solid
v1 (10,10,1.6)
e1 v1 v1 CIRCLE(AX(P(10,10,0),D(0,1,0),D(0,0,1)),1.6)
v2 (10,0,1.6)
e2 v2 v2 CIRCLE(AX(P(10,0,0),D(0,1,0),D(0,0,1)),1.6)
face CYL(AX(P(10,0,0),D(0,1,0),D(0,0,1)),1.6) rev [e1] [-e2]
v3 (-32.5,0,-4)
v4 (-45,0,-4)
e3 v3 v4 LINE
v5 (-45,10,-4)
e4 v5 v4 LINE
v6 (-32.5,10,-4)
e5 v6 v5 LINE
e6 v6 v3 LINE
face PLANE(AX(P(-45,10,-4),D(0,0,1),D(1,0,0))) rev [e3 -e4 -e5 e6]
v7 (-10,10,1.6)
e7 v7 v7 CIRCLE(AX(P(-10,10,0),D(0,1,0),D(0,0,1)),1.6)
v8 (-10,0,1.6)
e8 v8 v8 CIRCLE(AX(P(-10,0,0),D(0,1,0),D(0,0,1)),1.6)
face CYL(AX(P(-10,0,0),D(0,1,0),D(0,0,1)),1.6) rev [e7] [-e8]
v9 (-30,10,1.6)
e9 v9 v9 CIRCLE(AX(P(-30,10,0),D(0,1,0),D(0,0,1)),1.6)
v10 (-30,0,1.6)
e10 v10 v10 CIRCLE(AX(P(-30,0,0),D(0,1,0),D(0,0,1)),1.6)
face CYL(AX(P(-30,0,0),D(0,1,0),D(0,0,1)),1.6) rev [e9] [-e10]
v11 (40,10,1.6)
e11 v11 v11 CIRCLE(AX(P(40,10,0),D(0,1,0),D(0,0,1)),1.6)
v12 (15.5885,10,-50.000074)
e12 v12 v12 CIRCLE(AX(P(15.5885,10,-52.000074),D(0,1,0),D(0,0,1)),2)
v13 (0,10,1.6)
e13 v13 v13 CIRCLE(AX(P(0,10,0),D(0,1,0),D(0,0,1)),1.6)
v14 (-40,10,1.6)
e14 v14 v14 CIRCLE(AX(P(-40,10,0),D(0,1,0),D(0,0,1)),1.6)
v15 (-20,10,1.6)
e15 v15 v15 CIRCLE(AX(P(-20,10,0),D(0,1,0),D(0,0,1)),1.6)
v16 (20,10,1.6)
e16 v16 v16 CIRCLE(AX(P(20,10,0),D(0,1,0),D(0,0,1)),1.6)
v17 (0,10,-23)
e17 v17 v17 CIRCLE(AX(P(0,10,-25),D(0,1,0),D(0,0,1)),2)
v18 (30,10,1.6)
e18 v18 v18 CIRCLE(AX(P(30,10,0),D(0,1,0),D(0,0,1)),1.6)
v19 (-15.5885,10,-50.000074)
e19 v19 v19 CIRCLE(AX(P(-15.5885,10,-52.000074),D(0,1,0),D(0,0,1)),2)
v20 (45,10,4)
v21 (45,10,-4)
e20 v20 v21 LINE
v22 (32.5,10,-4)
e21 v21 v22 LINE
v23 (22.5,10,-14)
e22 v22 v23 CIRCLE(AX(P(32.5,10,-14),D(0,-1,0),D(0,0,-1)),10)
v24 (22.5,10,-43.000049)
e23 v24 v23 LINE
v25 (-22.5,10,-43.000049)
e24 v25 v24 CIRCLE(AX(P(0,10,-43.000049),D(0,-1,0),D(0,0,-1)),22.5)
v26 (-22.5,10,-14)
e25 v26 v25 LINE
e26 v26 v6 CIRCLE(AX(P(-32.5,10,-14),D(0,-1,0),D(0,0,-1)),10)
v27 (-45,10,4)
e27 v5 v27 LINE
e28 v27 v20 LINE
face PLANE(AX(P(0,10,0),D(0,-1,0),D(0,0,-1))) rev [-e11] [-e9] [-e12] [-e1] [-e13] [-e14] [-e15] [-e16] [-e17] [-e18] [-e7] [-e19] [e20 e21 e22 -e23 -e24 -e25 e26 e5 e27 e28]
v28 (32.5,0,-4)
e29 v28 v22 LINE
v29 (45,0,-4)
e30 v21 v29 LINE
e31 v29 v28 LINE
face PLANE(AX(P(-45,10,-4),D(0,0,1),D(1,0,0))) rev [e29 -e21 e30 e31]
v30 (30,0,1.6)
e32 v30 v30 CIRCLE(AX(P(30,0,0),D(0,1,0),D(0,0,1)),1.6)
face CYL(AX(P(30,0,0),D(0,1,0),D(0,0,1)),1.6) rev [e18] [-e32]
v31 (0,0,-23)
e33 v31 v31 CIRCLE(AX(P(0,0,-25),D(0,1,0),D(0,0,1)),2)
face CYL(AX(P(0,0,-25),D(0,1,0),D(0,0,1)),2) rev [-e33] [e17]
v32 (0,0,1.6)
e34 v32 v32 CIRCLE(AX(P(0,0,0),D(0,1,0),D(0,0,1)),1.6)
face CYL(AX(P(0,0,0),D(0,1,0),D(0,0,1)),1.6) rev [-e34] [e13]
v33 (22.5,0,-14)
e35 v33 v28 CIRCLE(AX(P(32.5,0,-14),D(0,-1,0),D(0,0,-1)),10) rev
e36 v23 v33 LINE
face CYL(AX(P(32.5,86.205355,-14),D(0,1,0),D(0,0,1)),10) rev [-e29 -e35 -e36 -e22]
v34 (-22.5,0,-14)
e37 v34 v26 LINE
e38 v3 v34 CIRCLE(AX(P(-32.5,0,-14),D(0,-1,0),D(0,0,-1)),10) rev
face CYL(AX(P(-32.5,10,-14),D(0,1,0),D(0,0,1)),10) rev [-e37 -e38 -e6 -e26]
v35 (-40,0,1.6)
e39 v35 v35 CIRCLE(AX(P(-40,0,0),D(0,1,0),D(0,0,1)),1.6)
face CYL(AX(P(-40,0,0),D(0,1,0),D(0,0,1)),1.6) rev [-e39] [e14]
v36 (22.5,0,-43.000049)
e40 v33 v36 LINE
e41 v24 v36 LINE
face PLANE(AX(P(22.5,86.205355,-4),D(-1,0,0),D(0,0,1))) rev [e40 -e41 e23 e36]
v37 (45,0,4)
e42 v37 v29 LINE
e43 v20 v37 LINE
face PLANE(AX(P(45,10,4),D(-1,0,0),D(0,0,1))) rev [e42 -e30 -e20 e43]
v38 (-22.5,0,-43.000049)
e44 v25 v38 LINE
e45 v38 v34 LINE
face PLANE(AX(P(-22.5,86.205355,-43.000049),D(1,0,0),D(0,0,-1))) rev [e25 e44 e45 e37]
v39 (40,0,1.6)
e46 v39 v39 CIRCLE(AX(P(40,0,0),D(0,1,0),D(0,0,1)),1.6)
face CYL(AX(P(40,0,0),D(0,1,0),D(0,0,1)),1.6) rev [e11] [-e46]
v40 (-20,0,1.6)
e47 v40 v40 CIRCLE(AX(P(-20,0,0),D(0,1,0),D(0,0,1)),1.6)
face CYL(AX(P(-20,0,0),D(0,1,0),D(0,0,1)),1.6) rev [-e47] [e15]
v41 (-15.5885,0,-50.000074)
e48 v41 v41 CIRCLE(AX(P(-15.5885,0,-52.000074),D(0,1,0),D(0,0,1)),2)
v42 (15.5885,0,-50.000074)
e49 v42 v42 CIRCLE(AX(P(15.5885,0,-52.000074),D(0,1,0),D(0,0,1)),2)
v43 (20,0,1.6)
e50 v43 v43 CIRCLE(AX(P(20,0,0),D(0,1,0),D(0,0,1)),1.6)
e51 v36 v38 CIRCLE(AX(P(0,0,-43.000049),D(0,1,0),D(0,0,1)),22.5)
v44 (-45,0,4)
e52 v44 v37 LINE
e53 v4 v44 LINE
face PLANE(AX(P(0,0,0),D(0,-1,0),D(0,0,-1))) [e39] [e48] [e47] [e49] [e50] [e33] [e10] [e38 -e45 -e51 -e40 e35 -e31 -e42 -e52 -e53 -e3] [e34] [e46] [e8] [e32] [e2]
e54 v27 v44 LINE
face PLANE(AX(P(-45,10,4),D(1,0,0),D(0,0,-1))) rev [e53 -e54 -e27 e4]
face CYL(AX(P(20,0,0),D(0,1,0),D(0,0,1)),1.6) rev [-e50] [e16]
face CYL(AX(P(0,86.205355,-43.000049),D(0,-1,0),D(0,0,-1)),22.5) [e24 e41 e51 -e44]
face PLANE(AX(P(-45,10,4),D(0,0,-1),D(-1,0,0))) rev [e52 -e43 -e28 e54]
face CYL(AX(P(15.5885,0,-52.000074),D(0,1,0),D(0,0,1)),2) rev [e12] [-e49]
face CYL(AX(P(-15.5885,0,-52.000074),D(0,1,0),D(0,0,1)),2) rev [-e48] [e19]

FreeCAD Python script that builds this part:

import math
import FreeCAD as App
import Part
import Sketcher
Q = App.Units.Quantity


def edges_at(feature, points):
    """Names of the edges that pass closest to the given points."""
    edges = feature.Shape.Edges
    near = lambda p: min(range(len(edges)), key=lambda i: edges[i].distToShape(Part.Vertex(*p))[0])
    return sorted({f"Edge{near(p) + 1}" for p in points})


def add_polygon(sketch, points):
    """Adds a closed chain of lines whose ends are joined by coincident constraints."""
    first, n = sketch.GeometryCount, len(points)
    for a, b in zip(points, points[1:] + points[:1]):
        sketch.addGeometry(Part.LineSegment(App.Vector(*a, 0), App.Vector(*b, 0)), False)
    for i in range(n):
        sketch.addConstraint(Sketcher.Constraint("Coincident", first + i, 2, first + (i + 1) % n, 1))

doc = App.newDocument("Part")
body = doc.addObject("PartDesign::Body", "Body")

sketch1 = body.newObject("Sketcher::SketchObject", "Sketch")
sketch1.AttachmentSupport = (doc.getObject("XZ_Plane"), [""])
sketch1.MapMode = "FlatFace"
add_polygon(sketch1, [(-45, -4), (-45, 4), (45, 4), (45, -4)])
sketch1.addConstraint(Sketcher.Constraint("Vertical", 0))
sketch1.addConstraint(Sketcher.Constraint("Horizontal", 1))
sketch1.addConstraint(Sketcher.Constraint("Vertical", 2))
sketch1.addConstraint(Sketcher.Constraint("Horizontal", 3))
sketch1.addConstraint(Sketcher.Constraint("Symmetric", 0, 2, 2, 2, -1, 1))
sketch1.addConstraint(Sketcher.Constraint("DistanceX", 1, 1, 1, 2, Q("90 mm")))
sketch1.addConstraint(Sketcher.Constraint("DistanceY", 0, 1, 0, 2, Q("8 mm")))
pad1 = body.newObject("PartDesign::Pad", "Pad")
pad1.Profile = sketch1
pad1.Length = 10
pad1.Reversed = True

sketch2 = body.newObject("Sketcher::SketchObject", "Sketch001")
sketch2.AttachmentSupport = (doc.getObject("XZ_Plane"), [""])
sketch2.MapMode = "FlatFace"
sketch2.addGeometry(Part.LineSegment(App.Vector(-22.5, -43.000049, 0), App.Vector(-22.5, -4, 0)), False)
sketch2.addGeometry(Part.LineSegment(App.Vector(-22.5, -4, 0), App.Vector(22.5, -4, 0)), False)
sketch2.addGeometry(Part.LineSegment(App.Vector(22.5, -4, 0), App.Vector(22.5, -43.000049, 0)), False)
sketch2.addGeometry(Part.ArcOfCircle(Part.Circle(App.Vector(0, -43.000049, 0), App.Vector(0, 0, 1), 22.5), math.radians(180), math.radians(360)), False)
sketch2.addConstraint(Sketcher.Constraint("Coincident", 0, 2, 1, 1))
sketch2.addConstraint(Sketcher.Constraint("Coincident", 1, 2, 2, 1))
sketch2.addConstraint(Sketcher.Constraint("Tangent", 2, 2, 3, 2))
sketch2.addConstraint(Sketcher.Constraint("Tangent", 3, 1, 0, 1))
sketch2.addConstraint(Sketcher.Constraint("Vertical", 0))
sketch2.addConstraint(Sketcher.Constraint("Horizontal", 1))
sketch2.addConstraint(Sketcher.Constraint("Vertical", 2))
sketch2.addConstraint(Sketcher.Constraint("PointOnObject", 3, 3, -2))
sketch2.addConstraint(Sketcher.Constraint("Radius", 3, Q("22.5 mm")))
sketch2.addConstraint(Sketcher.Constraint("DistanceY", 0, 2, -1, 1, Q("4 mm")))
sketch2.addConstraint(Sketcher.Constraint("DistanceY", 0, 1, 0, 2, Q("39.000049 mm")))
pad2 = body.newObject("PartDesign::Pad", "Pad001")
pad2.Profile = sketch2
pad2.Length = 10
pad2.Reversed = True

sketch3 = body.newObject("Sketcher::SketchObject", "Sketch002")
sketch3.AttachmentSupport = (doc.getObject("XZ_Plane"), [""])
sketch3.MapMode = "FlatFace"
sketch3.AttachmentOffset = App.Placement(App.Vector(0, 0, -10), App.Rotation())
sketch3.addGeometry(Part.Circle(App.Vector(-15.5885, -52.000074, 0), App.Vector(0, 0, 1), 2), False)
sketch3.addGeometry(Part.Circle(App.Vector(15.5885, -52.000074, 0), App.Vector(0, 0, 1), 2), False)
sketch3.addGeometry(Part.Circle(App.Vector(0, -25, 0), App.Vector(0, 0, 1), 2), False)
sketch3.addConstraint(Sketcher.Constraint("Equal", 0, 1))
sketch3.addConstraint(Sketcher.Constraint("Equal", 1, 2))
sketch3.addConstraint(Sketcher.Constraint("Symmetric", 0, 3, 1, 3, -2))
sketch3.addConstraint(Sketcher.Constraint("PointOnObject", 2, 3, -2))
sketch3.addConstraint(Sketcher.Constraint("Diameter", 0, Q("4 mm")))
sketch3.addConstraint(Sketcher.Constraint("DistanceY", 2, 3, -1, 1, Q("25 mm")))
sketch3.addConstraint(Sketcher.Constraint("DistanceX", 0, 3, 1, 3, Q("31.177 mm")))
sketch3.addConstraint(Sketcher.Constraint("DistanceY", 0, 3, -1, 1, Q("52.000074 mm")))
pocket1 = body.newObject("PartDesign::Pocket", "Pocket")
pocket1.Profile = sketch3
pocket1.Type = "ThroughAll"
pocket1.Reversed = True
doc.recompute()

fillet = body.newObject("PartDesign::Fillet", "Fillet")
fillet.Base = (pocket1, edges_at(pocket1, [(22.5, 5, -4), (-22.5, 5, -4)]))
fillet.Radius = 10

sketch4 = body.newObject("Sketcher::SketchObject", "Sketch003")
sketch4.AttachmentSupport = (doc.getObject("XZ_Plane"), [""])
sketch4.MapMode = "FlatFace"
sketch4.AttachmentOffset = App.Placement(App.Vector(0, 0, -10), App.Rotation())
sketch4.addGeometry(Part.Circle(App.Vector(-40, 0, 0), App.Vector(0, 0, 1), 1.6), False)
sketch4.addConstraint(Sketcher.Constraint("PointOnObject", 0, 3, -1))
sketch4.addConstraint(Sketcher.Constraint("Diameter", 0, Q("3.2 mm")))
sketch4.addConstraint(Sketcher.Constraint("DistanceX", 0, 3, -1, 1, Q("40 mm")))
pocket2 = body.newObject("PartDesign::Pocket", "Pocket001")
pocket2.Profile = sketch4
pocket2.Type = "ThroughAll"
pocket2.Reversed = True
doc.recompute()

linearpattern = body.newObject("PartDesign::LinearPattern", "LinearPattern")
linearpattern.Originals = [pocket2]
linearpattern.Direction = (doc.getObject("X_Axis"), [""])
linearpattern.Mode = "offset"
linearpattern.Offset = 10
linearpattern.Occurrences = 10
body.Tip = linearpattern

doc.recompute()
